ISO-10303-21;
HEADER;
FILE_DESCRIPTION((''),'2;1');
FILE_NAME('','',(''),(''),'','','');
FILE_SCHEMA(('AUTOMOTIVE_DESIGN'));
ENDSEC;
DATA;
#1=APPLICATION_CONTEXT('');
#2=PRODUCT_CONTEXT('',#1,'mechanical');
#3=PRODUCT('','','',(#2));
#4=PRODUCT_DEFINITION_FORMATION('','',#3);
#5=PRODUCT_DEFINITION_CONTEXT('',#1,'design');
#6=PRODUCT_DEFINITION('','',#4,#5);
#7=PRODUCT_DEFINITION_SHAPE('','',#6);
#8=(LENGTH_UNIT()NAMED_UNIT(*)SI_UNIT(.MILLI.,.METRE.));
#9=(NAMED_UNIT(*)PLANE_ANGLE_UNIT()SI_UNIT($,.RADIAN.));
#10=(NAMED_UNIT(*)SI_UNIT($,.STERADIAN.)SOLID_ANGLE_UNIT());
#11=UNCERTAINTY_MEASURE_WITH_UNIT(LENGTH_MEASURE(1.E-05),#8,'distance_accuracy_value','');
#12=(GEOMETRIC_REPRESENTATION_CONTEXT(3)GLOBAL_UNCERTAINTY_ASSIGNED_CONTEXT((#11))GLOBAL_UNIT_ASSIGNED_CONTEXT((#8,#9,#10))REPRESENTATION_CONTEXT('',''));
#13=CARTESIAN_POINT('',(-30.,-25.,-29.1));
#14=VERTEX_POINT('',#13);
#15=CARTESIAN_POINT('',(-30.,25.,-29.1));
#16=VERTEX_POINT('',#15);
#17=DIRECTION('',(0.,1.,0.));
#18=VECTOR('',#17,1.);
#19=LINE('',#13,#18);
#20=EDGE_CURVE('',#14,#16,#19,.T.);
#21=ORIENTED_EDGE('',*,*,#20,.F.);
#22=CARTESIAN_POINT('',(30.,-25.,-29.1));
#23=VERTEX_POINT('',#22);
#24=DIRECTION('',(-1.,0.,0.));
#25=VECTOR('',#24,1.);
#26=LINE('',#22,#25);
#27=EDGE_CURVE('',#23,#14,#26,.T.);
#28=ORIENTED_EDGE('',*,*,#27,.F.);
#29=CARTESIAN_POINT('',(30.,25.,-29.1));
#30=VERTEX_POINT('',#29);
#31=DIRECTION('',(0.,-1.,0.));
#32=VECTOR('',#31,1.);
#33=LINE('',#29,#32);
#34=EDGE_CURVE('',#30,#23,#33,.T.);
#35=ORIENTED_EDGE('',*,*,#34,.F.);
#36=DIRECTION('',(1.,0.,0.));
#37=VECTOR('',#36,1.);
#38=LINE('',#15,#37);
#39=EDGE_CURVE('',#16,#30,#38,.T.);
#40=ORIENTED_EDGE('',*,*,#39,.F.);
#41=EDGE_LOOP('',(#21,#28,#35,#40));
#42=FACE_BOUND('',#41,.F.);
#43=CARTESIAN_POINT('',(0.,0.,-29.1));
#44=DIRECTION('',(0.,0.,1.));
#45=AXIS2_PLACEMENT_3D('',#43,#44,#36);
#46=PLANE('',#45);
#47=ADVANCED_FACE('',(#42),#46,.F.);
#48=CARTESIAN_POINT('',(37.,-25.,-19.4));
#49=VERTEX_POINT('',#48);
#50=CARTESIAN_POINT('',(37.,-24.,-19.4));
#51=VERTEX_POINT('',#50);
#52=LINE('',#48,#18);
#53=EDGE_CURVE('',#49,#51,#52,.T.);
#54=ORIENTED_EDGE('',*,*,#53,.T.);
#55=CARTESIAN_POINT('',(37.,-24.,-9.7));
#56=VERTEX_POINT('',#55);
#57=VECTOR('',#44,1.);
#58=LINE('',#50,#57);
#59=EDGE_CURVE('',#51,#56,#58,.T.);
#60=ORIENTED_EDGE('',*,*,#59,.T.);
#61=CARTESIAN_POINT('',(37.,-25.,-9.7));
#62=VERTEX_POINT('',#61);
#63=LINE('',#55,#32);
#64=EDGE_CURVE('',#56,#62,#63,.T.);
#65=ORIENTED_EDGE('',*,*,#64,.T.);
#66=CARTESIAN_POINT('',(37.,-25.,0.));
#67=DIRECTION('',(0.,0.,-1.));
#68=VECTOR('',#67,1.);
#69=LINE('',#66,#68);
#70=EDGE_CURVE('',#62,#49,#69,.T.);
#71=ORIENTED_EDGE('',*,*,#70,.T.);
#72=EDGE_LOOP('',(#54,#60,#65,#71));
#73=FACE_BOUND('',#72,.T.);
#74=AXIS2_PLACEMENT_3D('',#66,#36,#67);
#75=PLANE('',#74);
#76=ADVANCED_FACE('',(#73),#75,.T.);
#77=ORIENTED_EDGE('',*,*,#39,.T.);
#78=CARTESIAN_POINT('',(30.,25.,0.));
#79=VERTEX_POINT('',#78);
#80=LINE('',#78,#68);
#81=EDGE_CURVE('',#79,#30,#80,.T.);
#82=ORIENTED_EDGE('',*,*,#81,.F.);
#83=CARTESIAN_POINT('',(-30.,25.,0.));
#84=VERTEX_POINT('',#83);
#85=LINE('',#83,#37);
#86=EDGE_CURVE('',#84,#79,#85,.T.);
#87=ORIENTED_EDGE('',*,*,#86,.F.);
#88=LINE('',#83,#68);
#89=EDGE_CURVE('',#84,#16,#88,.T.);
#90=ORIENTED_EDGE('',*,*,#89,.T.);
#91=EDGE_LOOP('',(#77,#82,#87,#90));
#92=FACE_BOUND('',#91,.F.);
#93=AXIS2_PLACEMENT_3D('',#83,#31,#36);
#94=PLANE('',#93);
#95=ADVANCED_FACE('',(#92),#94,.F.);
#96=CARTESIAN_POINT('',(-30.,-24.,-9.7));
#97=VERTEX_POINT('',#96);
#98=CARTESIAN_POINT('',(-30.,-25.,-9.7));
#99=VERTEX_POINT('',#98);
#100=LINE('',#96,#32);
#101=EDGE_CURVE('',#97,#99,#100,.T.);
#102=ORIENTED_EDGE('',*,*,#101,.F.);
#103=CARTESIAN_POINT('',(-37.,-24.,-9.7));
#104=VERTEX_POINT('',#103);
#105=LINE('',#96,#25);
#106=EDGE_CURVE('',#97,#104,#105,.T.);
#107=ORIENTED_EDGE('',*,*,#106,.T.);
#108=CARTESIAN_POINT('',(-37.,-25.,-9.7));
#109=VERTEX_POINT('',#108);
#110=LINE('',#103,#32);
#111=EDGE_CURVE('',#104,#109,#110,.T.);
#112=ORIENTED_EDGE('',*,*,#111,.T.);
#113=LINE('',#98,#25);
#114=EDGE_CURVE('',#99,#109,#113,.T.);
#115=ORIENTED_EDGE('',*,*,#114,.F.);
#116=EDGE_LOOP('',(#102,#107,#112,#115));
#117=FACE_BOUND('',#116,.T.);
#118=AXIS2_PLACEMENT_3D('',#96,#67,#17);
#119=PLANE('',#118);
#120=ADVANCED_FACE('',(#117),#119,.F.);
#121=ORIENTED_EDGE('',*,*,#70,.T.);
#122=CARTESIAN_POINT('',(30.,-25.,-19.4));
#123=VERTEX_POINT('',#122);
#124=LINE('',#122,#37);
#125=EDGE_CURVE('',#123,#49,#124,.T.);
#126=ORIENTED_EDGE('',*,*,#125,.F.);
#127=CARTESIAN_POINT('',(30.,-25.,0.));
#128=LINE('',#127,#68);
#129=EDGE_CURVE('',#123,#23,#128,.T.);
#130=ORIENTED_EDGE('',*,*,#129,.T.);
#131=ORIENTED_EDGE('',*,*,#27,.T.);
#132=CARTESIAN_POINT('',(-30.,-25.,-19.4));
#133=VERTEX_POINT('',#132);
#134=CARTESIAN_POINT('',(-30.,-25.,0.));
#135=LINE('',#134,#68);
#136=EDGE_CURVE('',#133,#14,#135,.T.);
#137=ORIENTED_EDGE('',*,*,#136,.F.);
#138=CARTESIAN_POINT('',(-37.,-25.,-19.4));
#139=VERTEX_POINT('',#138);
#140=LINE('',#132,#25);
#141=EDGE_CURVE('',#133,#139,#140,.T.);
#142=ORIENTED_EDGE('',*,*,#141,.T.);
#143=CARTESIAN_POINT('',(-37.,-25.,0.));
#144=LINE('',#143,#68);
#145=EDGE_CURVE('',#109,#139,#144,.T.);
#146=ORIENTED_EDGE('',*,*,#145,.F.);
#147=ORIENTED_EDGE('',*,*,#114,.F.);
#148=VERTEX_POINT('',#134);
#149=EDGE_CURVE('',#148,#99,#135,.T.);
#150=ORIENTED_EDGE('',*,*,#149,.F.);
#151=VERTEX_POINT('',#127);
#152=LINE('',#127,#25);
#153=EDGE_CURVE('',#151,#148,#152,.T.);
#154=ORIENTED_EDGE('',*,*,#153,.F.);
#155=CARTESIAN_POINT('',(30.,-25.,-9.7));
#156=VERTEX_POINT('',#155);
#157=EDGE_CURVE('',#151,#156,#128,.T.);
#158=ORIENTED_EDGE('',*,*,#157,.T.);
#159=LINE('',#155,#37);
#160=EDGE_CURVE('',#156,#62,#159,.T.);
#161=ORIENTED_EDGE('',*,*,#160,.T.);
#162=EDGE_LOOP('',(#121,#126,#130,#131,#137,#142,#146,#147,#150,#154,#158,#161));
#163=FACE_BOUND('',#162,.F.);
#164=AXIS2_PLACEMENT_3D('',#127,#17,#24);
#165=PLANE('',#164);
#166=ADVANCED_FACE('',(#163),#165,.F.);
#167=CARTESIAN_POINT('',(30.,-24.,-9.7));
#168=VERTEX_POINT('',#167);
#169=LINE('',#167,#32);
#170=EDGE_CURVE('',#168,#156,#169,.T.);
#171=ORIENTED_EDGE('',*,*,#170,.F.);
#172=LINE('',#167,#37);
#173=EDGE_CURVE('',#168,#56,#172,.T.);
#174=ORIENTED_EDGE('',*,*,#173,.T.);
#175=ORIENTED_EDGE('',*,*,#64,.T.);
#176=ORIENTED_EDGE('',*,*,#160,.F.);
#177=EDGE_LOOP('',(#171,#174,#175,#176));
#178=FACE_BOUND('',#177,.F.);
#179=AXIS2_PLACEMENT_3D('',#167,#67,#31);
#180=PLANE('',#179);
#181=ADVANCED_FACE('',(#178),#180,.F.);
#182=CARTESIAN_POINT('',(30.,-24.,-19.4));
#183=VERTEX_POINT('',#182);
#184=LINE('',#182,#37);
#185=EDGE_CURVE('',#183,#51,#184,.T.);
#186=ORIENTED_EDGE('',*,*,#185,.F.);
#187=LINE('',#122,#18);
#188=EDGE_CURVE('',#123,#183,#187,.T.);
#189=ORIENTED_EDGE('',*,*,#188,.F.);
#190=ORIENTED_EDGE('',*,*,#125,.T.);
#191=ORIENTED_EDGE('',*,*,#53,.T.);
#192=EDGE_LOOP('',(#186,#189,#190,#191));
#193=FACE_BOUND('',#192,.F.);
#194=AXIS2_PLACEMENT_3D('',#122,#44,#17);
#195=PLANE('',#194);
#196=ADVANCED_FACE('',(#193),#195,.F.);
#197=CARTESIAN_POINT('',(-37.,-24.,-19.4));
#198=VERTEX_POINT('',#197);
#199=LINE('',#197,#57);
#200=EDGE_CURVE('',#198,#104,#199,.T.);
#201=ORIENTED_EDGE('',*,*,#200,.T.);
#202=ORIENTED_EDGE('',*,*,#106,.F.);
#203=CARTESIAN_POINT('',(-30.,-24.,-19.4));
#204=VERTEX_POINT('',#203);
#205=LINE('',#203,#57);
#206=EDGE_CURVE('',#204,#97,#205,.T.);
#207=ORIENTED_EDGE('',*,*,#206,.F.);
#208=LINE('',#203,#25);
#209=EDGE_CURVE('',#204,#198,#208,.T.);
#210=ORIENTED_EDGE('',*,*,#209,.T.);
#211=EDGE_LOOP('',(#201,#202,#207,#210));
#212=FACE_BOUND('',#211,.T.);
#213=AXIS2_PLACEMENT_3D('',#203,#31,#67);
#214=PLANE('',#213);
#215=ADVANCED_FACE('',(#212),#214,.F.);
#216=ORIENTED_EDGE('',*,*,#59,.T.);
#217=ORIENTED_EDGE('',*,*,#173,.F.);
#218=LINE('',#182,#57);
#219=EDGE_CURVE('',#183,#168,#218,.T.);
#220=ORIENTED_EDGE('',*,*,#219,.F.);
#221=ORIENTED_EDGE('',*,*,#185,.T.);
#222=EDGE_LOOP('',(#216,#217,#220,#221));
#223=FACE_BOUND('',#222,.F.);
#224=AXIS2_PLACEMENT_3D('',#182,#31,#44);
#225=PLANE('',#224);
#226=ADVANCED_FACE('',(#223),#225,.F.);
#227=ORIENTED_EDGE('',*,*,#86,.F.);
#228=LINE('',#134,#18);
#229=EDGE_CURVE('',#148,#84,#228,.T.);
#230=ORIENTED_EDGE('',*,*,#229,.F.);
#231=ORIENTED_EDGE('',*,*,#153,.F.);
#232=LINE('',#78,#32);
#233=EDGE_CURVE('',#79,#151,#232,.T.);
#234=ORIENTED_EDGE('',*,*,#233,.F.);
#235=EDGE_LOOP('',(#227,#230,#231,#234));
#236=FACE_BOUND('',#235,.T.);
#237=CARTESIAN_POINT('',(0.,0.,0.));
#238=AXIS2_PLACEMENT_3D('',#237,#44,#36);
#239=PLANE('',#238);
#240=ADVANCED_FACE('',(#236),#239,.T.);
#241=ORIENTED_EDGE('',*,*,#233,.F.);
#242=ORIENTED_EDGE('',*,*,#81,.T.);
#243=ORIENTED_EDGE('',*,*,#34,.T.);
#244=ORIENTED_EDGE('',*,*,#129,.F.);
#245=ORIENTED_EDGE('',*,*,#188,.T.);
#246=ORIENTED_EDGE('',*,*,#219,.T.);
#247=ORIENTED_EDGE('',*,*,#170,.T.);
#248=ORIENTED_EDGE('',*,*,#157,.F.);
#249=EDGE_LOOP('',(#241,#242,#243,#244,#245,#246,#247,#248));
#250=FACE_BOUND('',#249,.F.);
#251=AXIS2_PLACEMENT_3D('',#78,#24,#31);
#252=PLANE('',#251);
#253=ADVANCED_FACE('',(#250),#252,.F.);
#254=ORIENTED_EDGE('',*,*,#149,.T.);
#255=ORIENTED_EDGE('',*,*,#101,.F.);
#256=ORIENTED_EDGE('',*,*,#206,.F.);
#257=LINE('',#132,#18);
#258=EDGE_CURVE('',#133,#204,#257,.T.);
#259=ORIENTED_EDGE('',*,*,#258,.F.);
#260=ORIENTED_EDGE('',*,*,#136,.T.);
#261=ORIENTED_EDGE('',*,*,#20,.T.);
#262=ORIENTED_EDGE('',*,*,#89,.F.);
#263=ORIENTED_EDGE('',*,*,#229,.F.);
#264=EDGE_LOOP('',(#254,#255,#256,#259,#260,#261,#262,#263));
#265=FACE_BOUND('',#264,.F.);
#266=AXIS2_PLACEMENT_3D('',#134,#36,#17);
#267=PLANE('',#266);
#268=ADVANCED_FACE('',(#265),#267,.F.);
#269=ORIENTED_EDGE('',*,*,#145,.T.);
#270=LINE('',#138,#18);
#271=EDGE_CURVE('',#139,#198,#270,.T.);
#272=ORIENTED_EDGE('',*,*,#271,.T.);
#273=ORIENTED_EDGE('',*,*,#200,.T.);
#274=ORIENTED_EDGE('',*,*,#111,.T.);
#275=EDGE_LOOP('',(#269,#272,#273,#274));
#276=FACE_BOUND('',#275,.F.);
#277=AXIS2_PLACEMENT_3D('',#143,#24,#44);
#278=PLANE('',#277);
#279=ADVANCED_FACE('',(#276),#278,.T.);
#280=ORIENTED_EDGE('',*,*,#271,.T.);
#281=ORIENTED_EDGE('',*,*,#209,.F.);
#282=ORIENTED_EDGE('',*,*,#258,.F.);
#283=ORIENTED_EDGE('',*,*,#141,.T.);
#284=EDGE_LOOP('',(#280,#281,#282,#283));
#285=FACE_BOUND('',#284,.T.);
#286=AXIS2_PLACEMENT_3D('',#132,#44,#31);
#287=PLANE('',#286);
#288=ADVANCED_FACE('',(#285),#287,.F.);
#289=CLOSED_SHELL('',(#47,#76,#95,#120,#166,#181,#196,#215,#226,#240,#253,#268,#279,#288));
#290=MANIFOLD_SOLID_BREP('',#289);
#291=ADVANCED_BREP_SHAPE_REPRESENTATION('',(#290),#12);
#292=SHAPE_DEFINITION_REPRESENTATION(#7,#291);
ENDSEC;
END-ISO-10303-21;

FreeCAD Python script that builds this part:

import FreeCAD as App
import Part
import Sketcher

V = App.Vector


def add_polygon(sketch, points):
    """Adds a closed chain of lines whose ends are joined by coincident constraints."""
    first, n = sketch.GeometryCount, len(points)
    for a, b in zip(points, points[1:] + points[:1]):
        sketch.addGeometry(Part.LineSegment(App.Vector(*a, 0), App.Vector(*b, 0)), False)
    for i in range(n):
        sketch.addConstraint(Sketcher.Constraint("Coincident", first + i, 2, first + (i + 1) % n, 1))

doc = App.newDocument("Part")
params = doc.addObject("Spreadsheet::Sheet", "Params")
for row, (alias, value) in enumerate([
    ("sketch1_width", "60 mm"),
    ("sketch1_height", "50 mm"),
    ("pad1_length", "29.1 mm"),
    ("sketch2_width", "1 mm"),
    ("sketch2_height", "9.7 mm"),
    ("pad2_length", "7 mm"),
], start=1):
    params.set(f"A{row}", alias)
    params.set(f"B{row}", "=" + value)
    params.setAlias(f"B{row}", alias)

body = doc.addObject("PartDesign::Body", "Body")

sketch1 = body.newObject("Sketcher::SketchObject", "Sketch")
sketch1.AttachmentSupport = (doc.getObject("XY_Plane"), [""])
sketch1.MapMode = "FlatFace"
add_polygon(sketch1, [(-30, -25), (30, -25), (30, 25), (-30, 25)])
sketch1.addConstraint([
    Sketcher.Constraint("Horizontal", 0),
    Sketcher.Constraint("Vertical", 1),
    Sketcher.Constraint("Horizontal", 2),
    Sketcher.Constraint("Vertical", 3),
    Sketcher.Constraint("Symmetric", 0, 2, 2, 2, -1, 1),
    Sketcher.Constraint("DistanceX", 0, 1, 0, 2, 60.0),
    Sketcher.Constraint("DistanceY", 1, 1, 1, 2, 50.0),
])
sketch1.setExpression("Constraints[9]", "Params.sketch1_width")
sketch1.setExpression("Constraints[10]", "Params.sketch1_height")
pad1 = body.newObject("PartDesign::Pad", "Pad")
pad1.Profile = sketch1
pad1.setExpression("Length", "Params.pad1_length")
pad1.Reversed = True

sketch2 = body.newObject("Sketcher::SketchObject", "Sketch001")
sketch2.AttachmentSupport = (doc.getObject("YZ_Plane"), [""])
sketch2.MapMode = "FlatFace"
sketch2.AttachmentOffset = App.Placement(V(0, 0, 30), App.Rotation())
add_polygon(sketch2, [(-24, -9.7), (-25, -9.7), (-25, -19.4), (-24, -19.4)])
sketch2.addConstraint([
    Sketcher.Constraint("Horizontal", 0),
    Sketcher.Constraint("Vertical", 1),
    Sketcher.Constraint("Horizontal", 2),
    Sketcher.Constraint("Vertical", 3),
    Sketcher.Constraint("DistanceX", 0, 2, 0, 1, 1.0),
    Sketcher.Constraint("DistanceY", 1, 2, 1, 1, 9.7),
    Sketcher.Constraint("DistanceX", 0, 2, -1, 1, 25.0),
    Sketcher.Constraint("DistanceY", 0, 2, -1, 1, 9.7),
])
sketch2.setExpression("Constraints[8]", "Params.sketch2_width")
sketch2.setExpression("Constraints[9]", "Params.sketch2_height")
pad2 = body.newObject("PartDesign::Pad", "Pad001")
pad2.Profile = sketch2
pad2.setExpression("Length", "Params.pad2_length")
doc.recompute()

mirrored = body.newObject("PartDesign::Mirrored", "Mirrored")
mirrored.Originals = [pad2]
mirrored.MirrorPlane = (doc.getObject("YZ_Plane"), [""])
body.Tip = mirrored

doc.recompute()
